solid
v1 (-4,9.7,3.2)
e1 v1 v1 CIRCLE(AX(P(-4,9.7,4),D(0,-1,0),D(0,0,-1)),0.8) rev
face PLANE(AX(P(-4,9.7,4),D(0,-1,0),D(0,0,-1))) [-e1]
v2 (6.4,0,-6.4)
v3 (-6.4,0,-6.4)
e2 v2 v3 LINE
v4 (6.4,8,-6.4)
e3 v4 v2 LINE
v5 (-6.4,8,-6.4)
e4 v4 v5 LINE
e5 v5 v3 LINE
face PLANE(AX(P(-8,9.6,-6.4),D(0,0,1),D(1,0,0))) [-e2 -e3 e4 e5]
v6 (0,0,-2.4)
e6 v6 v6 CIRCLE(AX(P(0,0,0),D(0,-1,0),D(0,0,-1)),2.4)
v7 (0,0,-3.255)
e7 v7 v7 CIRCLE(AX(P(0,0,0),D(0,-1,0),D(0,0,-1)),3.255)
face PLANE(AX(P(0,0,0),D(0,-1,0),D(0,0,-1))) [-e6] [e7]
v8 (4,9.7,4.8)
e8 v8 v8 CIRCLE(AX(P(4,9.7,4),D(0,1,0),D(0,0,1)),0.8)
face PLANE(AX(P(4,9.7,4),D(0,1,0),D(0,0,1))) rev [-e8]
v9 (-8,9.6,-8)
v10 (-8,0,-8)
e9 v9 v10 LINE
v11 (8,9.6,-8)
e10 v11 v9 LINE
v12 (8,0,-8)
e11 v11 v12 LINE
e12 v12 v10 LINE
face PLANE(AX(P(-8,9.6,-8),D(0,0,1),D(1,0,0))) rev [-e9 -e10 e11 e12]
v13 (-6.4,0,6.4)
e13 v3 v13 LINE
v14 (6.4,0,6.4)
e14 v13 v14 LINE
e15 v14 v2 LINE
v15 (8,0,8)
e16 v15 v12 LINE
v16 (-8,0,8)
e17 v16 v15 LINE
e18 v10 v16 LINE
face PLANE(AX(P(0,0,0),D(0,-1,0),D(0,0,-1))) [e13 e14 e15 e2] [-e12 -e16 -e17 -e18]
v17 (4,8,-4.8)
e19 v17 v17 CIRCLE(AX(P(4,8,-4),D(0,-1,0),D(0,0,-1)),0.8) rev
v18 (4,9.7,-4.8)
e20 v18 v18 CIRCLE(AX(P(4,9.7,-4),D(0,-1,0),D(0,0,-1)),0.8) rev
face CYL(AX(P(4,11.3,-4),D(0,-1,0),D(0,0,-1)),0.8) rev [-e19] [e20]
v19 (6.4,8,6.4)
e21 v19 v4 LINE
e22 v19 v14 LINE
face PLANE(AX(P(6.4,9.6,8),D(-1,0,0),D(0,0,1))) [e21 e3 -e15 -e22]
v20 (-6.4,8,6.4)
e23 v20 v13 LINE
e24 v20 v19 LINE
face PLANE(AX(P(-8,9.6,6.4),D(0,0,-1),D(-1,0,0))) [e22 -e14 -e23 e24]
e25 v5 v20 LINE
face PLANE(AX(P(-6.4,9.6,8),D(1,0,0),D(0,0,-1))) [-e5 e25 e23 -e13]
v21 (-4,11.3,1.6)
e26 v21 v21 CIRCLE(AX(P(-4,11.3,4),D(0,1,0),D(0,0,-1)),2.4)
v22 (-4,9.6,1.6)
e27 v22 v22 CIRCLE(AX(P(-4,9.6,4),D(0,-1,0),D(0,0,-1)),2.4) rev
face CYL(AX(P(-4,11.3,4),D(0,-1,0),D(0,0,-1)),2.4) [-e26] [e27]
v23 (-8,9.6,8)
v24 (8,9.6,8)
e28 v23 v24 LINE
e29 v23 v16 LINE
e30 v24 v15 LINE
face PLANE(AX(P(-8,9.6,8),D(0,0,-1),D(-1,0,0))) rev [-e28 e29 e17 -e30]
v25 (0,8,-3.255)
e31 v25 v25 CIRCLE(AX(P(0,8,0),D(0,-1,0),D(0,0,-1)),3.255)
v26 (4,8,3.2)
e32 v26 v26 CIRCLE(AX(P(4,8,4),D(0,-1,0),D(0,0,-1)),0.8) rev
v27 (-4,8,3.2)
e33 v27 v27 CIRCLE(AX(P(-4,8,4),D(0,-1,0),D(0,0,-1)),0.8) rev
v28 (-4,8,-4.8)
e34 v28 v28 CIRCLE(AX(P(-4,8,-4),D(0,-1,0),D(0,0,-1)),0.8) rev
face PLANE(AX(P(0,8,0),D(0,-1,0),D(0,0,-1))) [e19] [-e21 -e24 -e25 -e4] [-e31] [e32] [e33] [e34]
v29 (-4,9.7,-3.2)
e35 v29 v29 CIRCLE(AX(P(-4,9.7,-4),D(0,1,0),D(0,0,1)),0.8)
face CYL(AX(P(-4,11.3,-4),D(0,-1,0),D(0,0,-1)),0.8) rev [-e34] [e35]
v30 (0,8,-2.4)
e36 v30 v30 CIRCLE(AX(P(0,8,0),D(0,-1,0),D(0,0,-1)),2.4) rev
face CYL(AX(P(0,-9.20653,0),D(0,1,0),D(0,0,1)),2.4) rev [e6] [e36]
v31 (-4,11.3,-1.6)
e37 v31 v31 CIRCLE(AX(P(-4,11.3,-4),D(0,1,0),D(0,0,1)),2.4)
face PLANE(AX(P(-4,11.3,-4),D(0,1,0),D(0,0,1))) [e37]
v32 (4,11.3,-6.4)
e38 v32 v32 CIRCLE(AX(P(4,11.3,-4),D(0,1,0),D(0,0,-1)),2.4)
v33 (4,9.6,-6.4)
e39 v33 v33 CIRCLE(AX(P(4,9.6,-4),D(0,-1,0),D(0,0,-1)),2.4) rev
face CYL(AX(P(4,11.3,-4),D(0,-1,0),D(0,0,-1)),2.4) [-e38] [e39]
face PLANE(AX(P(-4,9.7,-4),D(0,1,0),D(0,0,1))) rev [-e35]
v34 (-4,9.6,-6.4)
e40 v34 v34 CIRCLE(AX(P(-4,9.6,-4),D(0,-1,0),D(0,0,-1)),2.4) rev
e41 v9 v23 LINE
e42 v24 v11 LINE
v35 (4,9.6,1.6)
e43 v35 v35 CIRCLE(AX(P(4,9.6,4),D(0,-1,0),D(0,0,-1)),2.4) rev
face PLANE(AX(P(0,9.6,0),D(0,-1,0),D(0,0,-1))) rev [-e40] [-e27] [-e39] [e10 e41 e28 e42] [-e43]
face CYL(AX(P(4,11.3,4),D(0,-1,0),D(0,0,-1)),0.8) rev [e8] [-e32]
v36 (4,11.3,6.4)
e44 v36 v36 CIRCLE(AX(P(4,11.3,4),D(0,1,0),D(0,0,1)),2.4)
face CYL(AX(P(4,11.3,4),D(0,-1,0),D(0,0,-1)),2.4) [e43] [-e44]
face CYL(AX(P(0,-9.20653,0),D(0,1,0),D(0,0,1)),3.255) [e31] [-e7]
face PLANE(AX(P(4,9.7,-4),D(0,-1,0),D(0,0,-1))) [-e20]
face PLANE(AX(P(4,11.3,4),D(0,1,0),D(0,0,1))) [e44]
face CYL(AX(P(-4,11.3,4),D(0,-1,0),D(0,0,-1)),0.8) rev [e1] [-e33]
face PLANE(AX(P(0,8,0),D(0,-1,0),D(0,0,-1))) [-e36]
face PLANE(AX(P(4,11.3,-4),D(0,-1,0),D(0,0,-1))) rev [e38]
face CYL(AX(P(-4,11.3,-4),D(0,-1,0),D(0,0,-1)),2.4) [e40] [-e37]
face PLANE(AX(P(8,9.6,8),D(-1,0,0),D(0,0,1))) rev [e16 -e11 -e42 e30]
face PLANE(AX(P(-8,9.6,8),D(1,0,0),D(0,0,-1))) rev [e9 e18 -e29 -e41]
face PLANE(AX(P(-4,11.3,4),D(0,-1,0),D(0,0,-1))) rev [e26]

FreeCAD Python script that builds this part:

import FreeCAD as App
import Part
import Sketcher
Q = App.Units.Quantity


def faces_at(feature, points):
    """Names of the faces that lie closest to the given points."""
    faces = feature.Shape.Faces
    near = lambda p: min(range(len(faces)), key=lambda i: faces[i].distToShape(Part.Vertex(*p))[0])
    return sorted({f"Face{near(p) + 1}" for p in points})


def add_polygon(sketch, points):
    """Adds a closed chain of lines whose ends are joined by coincident constraints."""
    first, n = sketch.GeometryCount, len(points)
    for a, b in zip(points, points[1:] + points[:1]):
        sketch.addGeometry(Part.LineSegment(App.Vector(*a, 0), App.Vector(*b, 0)), False)
    for i in range(n):
        sketch.addConstraint(Sketcher.Constraint("Coincident", first + i, 2, first + (i + 1) % n, 1))

doc = App.newDocument("Part")
body = doc.addObject("PartDesign::Body", "Body")

sketch1 = doc.addObject("Sketcher::SketchObject", "Sketch")
body.addObject(sketch1)
sketch1.AttachmentSupport = (doc.XZ_Plane, [""])
sketch1.MapMode = "FlatFace"
add_polygon(sketch1, [(-8, -8), (-8, 8), (8, 8), (8, -8)])
sketch1.addConstraint(Sketcher.Constraint("Vertical", 0))
sketch1.addConstraint(Sketcher.Constraint("Horizontal", 1))
sketch1.addConstraint(Sketcher.Constraint("Vertical", 2))
sketch1.addConstraint(Sketcher.Constraint("Horizontal", 3))
sketch1.addConstraint(Sketcher.Constraint("Symmetric", 0, 2, 2, 2, -1, 1))
sketch1.addConstraint(Sketcher.Constraint("Equal", 3, 0))
sketch1.addConstraint(Sketcher.Constraint("DistanceX", 1, 1, 1, 2, Q("16 mm")))
pad1 = doc.addObject("PartDesign::Pad", "Pad")
body.addObject(pad1)
pad1.Profile = sketch1
pad1.Length = 9.6
pad1.Reversed = True

sketch2 = doc.addObject("Sketcher::SketchObject", "Sketch001")
body.addObject(sketch2)
sketch2.AttachmentSupport = (doc.XZ_Plane, [""])
sketch2.MapMode = "FlatFace"
sketch2.AttachmentOffset = App.Placement(App.Vector(0, 0, -9.6), App.Rotation())
sketch2.addGeometry(Part.Circle(App.Vector(-4, -4, 0), App.Vector(0, 0, 1), 2.4), False)
sketch2.addGeometry(Part.Circle(App.Vector(4, -4, 0), App.Vector(0, 0, 1), 2.4), False)
sketch2.addGeometry(Part.Circle(App.Vector(4, 4, 0), App.Vector(0, 0, 1), 2.4), False)
sketch2.addGeometry(Part.Circle(App.Vector(-4, 4, 0), App.Vector(0, 0, 1), 2.4), False)
sketch2.addConstraint(Sketcher.Constraint("Equal", 0, 1))
sketch2.addConstraint(Sketcher.Constraint("Equal", 1, 2))
sketch2.addConstraint(Sketcher.Constraint("Equal", 2, 3))
sketch2.addConstraint(Sketcher.Constraint("Symmetric", 0, 3, 2, 3, -1, 1))
sketch2.addConstraint(Sketcher.Constraint("Symmetric", 1, 3, 3, 3, -1, 1))
sketch2.addConstraint(Sketcher.Constraint("Symmetric", 0, 3, 1, 3, -2))
sketch2.addConstraint(Sketcher.Constraint("Diameter", 0, Q("4.8 mm")))
sketch2.addConstraint(Sketcher.Constraint("DistanceX", 0, 3, -1, 1, Q("4 mm")))
sketch2.addConstraint(Sketcher.Constraint("DistanceY", 0, 3, -1, 1, Q("4 mm")))
pad2 = doc.addObject("PartDesign::Pad", "Pad001")
body.addObject(pad2)
pad2.Profile = sketch2
pad2.Length = 1.7
pad2.Reversed = True
doc.recompute()

thickness = doc.addObject("PartDesign::Thickness", "Thickness")
body.addObject(thickness)
thickness.Base = (pad2, faces_at(pad2, [(0, 0, 0)]))
thickness.Value = 1.6
thickness.Reversed = True
thickness.Join = "Intersection"

sketch3 = doc.addObject("Sketcher::SketchObject", "Sketch002")
body.addObject(sketch3)
sketch3.AttachmentSupport = (doc.XZ_Plane, [""])
sketch3.MapMode = "FlatFace"
sketch3.AttachmentOffset = App.Placement(App.Vector(0, 0, -8), App.Rotation())
sketch3.addGeometry(Part.Circle(App.Vector(0, 0, 0), App.Vector(0, 0, 1), 3.255), False)
sketch3.addGeometry(Part.Circle(App.Vector(0, 0, 0), App.Vector(0, 0, 1), 2.4), False)
sketch3.addConstraint(Sketcher.Constraint("Coincident", 0, 3, -1, 1))
sketch3.addConstraint(Sketcher.Constraint("Coincident", 1, 3, -1, 1))
sketch3.addConstraint(Sketcher.Constraint("Diameter", 1, Q("4.8 mm")))
sketch3.addConstraint(Sketcher.Constraint("Diameter", 0, Q("6.51 mm")))
pad3 = doc.addObject("PartDesign::Pad", "Pad002")
body.addObject(pad3)
pad3.Profile = sketch3
pad3.Length = 8

doc.recompute()
